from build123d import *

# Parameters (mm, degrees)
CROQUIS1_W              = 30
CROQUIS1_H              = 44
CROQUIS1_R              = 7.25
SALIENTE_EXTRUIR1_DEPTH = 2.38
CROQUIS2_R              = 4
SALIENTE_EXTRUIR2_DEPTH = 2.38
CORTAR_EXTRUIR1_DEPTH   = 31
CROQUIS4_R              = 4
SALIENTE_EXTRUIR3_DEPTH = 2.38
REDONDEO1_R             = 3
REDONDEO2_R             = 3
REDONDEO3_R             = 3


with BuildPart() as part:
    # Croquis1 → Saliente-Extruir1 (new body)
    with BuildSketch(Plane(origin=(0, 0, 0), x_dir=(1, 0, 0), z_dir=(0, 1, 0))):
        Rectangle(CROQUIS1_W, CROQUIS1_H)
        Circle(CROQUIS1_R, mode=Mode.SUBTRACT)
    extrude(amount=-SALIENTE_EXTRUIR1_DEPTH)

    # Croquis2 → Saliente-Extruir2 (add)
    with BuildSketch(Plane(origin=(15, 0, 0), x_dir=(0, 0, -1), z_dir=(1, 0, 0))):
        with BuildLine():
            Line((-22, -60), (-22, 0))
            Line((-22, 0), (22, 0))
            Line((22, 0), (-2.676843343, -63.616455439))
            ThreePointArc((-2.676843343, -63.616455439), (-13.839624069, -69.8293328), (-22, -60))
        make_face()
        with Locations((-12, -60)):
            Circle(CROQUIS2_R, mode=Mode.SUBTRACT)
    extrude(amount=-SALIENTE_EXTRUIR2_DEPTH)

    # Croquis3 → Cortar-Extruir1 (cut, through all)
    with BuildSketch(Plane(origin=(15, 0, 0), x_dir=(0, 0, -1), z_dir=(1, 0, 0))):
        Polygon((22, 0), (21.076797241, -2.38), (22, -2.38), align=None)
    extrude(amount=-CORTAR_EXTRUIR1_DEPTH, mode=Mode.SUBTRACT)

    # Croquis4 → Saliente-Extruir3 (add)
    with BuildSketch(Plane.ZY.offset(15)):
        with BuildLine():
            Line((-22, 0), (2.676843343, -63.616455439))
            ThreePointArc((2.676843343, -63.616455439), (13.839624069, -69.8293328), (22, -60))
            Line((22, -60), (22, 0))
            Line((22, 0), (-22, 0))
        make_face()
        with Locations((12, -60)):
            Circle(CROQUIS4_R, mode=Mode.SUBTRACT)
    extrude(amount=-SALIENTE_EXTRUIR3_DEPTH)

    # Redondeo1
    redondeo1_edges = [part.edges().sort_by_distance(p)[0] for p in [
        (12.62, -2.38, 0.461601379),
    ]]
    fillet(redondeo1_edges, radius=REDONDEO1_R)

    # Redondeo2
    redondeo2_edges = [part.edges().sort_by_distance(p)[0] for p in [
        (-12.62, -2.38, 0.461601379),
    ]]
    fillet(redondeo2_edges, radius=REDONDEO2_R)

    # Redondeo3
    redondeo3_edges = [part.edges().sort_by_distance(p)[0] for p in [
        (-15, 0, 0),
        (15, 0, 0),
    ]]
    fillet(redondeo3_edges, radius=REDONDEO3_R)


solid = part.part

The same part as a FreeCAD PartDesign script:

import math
import FreeCAD as App
import Part
import Sketcher
from FreeCAD import Vector
Q = App.Units.Quantity


def edges_at(feature, points):
    """Names of the edges that pass closest to the given points."""
    edges = feature.Shape.Edges
    near = lambda p: min(range(len(edges)), key=lambda i: edges[i].distToShape(Part.Vertex(*p))[0])
    return sorted({f"Edge{near(p) + 1}" for p in points})


def add_polygon(sketch, points):
    """Adds a closed chain of lines whose ends are joined by coincident constraints."""
    first, n = sketch.GeometryCount, len(points)
    for a, b in zip(points, points[1:] + points[:1]):
        sketch.addGeometry(Part.LineSegment(App.Vector(*a, 0), App.Vector(*b, 0)), False)
    for i in range(n):
        sketch.addConstraint(Sketcher.Constraint("Coincident", first + i, 2, first + (i + 1) % n, 1))

doc = App.newDocument("Part")
body = doc.addObject("PartDesign::Body", "Body")

sketch1 = body.newObject("Sketcher::SketchObject", "Sketch")
sketch1.AttachmentSupport = (doc.getObject("XZ_Plane"), [""])
sketch1.MapMode = "FlatFace"
add_polygon(sketch1, [(-15, -22), (-15, 22), (15, 22), (15, -22)])
sketch1.addGeometry(Part.Circle(Vector(0, 0, 0), Vector(0, 0, 1), 7.25), False)
sketch1.addConstraint(Sketcher.Constraint("Vertical", 0))
sketch1.addConstraint(Sketcher.Constraint("Horizontal", 1))
sketch1.addConstraint(Sketcher.Constraint("Vertical", 2))
sketch1.addConstraint(Sketcher.Constraint("Horizontal", 3))
sketch1.addConstraint(Sketcher.Constraint("Coincident", 4, 3, -1, 1))
sketch1.addConstraint(Sketcher.Constraint("Symmetric", 0, 2, 2, 2, -1, 1))
sketch1.addConstraint(Sketcher.Constraint("Diameter", 4, Q("14.5 mm")))
sketch1.addConstraint(Sketcher.Constraint("DistanceX", 1, 1, 1, 2, Q("30 mm")))
sketch1.addConstraint(Sketcher.Constraint("DistanceY", 0, 1, 0, 2, Q("44 mm")))
pad1 = body.newObject("PartDesign::Pad", "Pad")
pad1.Profile = sketch1
pad1.Length = 2.38

sketch2 = body.newObject("Sketcher::SketchObject", "Sketch001")
sketch2.AttachmentSupport = (doc.getObject("YZ_Plane"), [""])
sketch2.MapMode = "FlatFace"
sketch2.AttachmentOffset = App.Placement(Vector(0, 0, 15), App.Rotation())
sketch2.addGeometry(Part.LineSegment(Vector(0, 22, 0), Vector(-60, 22, 0)), False)
sketch2.addGeometry(Part.ArcOfCircle(Part.Circle(Vector(-60, 12, 0), Vector(0, 0, 1), 10), math.radians(90), math.radians(248.798711)), False)
sketch2.addGeometry(Part.LineSegment(Vector(-63.616455, 2.676843, 0), Vector(0, -22, 0)), False)
sketch2.addGeometry(Part.LineSegment(Vector(0, -22, 0), Vector(0, 22, 0)), False)
sketch2.addGeometry(Part.Circle(Vector(-60, 12, 0), Vector(0, 0, 1), 4), False)
sketch2.addConstraint(Sketcher.Constraint("Tangent", 0, 2, 1, 1))
sketch2.addConstraint(Sketcher.Constraint("Tangent", 1, 2, 2, 1))
sketch2.addConstraint(Sketcher.Constraint("Coincident", 2, 2, 3, 1))
sketch2.addConstraint(Sketcher.Constraint("Coincident", 3, 2, 0, 1))
sketch2.addConstraint(Sketcher.Constraint("Horizontal", 0))
sketch2.addConstraint(Sketcher.Constraint("Vertical", 3))
sketch2.addConstraint(Sketcher.Constraint("Coincident", 4, 3, 1, 3))
sketch2.addConstraint(Sketcher.Constraint("Symmetric", 2, 2, 3, 2, -1, 1))
sketch2.addConstraint(Sketcher.Constraint("Diameter", 4, Q("8 mm")))
sketch2.addConstraint(Sketcher.Constraint("Radius", 1, Q("10 mm")))
sketch2.addConstraint(Sketcher.Constraint("DistanceX", 0, 2, 0, 1, Q("60 mm")))
sketch2.addConstraint(Sketcher.Constraint("DistanceY", 3, 1, 3, 2, Q("44 mm")))
pad2 = body.newObject("PartDesign::Pad", "Pad001")
pad2.Profile = sketch2
pad2.Length = 2.38
pad2.Reversed = True

sketch3 = body.newObject("Sketcher::SketchObject", "Sketch002")
sketch3.AttachmentSupport = (doc.getObject("YZ_Plane"), [""])
sketch3.MapMode = "FlatFace"
sketch3.AttachmentOffset = App.Placement(Vector(0, 0, 15), App.Rotation())
add_polygon(sketch3, [(0, -22), (-2.38, -21.076797), (-2.38, -22)])
sketch3.addConstraint(Sketcher.Constraint("Vertical", 1))
sketch3.addConstraint(Sketcher.Constraint("Horizontal", 2))
sketch3.addConstraint(Sketcher.Constraint("PointOnObject", 2, 2, -2))
sketch3.addConstraint(Sketcher.Constraint("DistanceY", 1, 2, -1, 1, Q("22 mm")))
sketch3.addConstraint(Sketcher.Constraint("DistanceX", 2, 1, 2, 2, Q("2.38 mm")))
sketch3.addConstraint(Sketcher.Constraint("DistanceY", 1, 2, 1, 1, Q("0.923203 mm")))
pocket1 = body.newObject("PartDesign::Pocket", "Pocket")
pocket1.Profile = sketch3
pocket1.Type = "ThroughAll"

sketch4 = body.newObject("Sketcher::SketchObject", "Sketch003")
sketch4.AttachmentSupport = (doc.getObject("YZ_Plane"), [""])
sketch4.MapMode = "FlatFace"
sketch4.AttachmentOffset = App.Placement(Vector(0, 0, -15), App.Rotation())
sketch4.addGeometry(Part.LineSegment(Vector(0, -22, 0), Vector(-63.616455, 2.676843, 0)), False)
sketch4.addGeometry(Part.ArcOfCircle(Part.Circle(Vector(-60, 12, 0), Vector(0, 0, 1), 10), math.radians(90), math.radians(248.798711)), False)
sketch4.addGeometry(Part.LineSegment(Vector(-60, 22, 0), Vector(0, 22, 0)), False)
sketch4.addGeometry(Part.LineSegment(Vector(0, 22, 0), Vector(0, -22, 0)), False)
sketch4.addGeometry(Part.Circle(Vector(-60, 12, 0), Vector(0, 0, 1), 4), False)
sketch4.addConstraint(Sketcher.Constraint("Tangent", 0, 2, 1, 2))
sketch4.addConstraint(Sketcher.Constraint("Tangent", 1, 1, 2, 1))
sketch4.addConstraint(Sketcher.Constraint("Coincident", 2, 2, 3, 1))
sketch4.addConstraint(Sketcher.Constraint("Coincident", 3, 2, 0, 1))
sketch4.addConstraint(Sketcher.Constraint("Horizontal", 2))
sketch4.addConstraint(Sketcher.Constraint("Vertical", 3))
sketch4.addConstraint(Sketcher.Constraint("Coincident", 4, 3, 1, 3))
sketch4.addConstraint(Sketcher.Constraint("Symmetric", 2, 2, 3, 2, -1, 1))
sketch4.addConstraint(Sketcher.Constraint("Diameter", 4, Q("8 mm")))
sketch4.addConstraint(Sketcher.Constraint("Radius", 1, Q("10 mm")))
sketch4.addConstraint(Sketcher.Constraint("DistanceX", 2, 1, 2, 2, Q("60 mm")))
sketch4.addConstraint(Sketcher.Constraint("DistanceY", 3, 2, 3, 1, Q("44 mm")))
pad3 = body.newObject("PartDesign::Pad", "Pad002")
pad3.Profile = sketch4
pad3.Length = 2.38
doc.recompute()

fillet = body.newObject("PartDesign::Fillet", "Fillet")
fillet.Base = (pad3, edges_at(pad3, [(12.62, -2.38, 0.462)]))
fillet.Radius = 3
doc.recompute()

fillet2 = body.newObject("PartDesign::Fillet", "Fillet001")
fillet2.Base = (fillet, edges_at(fillet, [(-12.62, -2.38, 0.462)]))
fillet2.Radius = 3
doc.recompute()

fillet3 = body.newObject("PartDesign::Fillet", "Fillet002")
fillet3.Base = (fillet2, edges_at(fillet2, [(-15, 0, 0), (15, 0, 0)]))
fillet3.Radius = 3

doc.recompute()
